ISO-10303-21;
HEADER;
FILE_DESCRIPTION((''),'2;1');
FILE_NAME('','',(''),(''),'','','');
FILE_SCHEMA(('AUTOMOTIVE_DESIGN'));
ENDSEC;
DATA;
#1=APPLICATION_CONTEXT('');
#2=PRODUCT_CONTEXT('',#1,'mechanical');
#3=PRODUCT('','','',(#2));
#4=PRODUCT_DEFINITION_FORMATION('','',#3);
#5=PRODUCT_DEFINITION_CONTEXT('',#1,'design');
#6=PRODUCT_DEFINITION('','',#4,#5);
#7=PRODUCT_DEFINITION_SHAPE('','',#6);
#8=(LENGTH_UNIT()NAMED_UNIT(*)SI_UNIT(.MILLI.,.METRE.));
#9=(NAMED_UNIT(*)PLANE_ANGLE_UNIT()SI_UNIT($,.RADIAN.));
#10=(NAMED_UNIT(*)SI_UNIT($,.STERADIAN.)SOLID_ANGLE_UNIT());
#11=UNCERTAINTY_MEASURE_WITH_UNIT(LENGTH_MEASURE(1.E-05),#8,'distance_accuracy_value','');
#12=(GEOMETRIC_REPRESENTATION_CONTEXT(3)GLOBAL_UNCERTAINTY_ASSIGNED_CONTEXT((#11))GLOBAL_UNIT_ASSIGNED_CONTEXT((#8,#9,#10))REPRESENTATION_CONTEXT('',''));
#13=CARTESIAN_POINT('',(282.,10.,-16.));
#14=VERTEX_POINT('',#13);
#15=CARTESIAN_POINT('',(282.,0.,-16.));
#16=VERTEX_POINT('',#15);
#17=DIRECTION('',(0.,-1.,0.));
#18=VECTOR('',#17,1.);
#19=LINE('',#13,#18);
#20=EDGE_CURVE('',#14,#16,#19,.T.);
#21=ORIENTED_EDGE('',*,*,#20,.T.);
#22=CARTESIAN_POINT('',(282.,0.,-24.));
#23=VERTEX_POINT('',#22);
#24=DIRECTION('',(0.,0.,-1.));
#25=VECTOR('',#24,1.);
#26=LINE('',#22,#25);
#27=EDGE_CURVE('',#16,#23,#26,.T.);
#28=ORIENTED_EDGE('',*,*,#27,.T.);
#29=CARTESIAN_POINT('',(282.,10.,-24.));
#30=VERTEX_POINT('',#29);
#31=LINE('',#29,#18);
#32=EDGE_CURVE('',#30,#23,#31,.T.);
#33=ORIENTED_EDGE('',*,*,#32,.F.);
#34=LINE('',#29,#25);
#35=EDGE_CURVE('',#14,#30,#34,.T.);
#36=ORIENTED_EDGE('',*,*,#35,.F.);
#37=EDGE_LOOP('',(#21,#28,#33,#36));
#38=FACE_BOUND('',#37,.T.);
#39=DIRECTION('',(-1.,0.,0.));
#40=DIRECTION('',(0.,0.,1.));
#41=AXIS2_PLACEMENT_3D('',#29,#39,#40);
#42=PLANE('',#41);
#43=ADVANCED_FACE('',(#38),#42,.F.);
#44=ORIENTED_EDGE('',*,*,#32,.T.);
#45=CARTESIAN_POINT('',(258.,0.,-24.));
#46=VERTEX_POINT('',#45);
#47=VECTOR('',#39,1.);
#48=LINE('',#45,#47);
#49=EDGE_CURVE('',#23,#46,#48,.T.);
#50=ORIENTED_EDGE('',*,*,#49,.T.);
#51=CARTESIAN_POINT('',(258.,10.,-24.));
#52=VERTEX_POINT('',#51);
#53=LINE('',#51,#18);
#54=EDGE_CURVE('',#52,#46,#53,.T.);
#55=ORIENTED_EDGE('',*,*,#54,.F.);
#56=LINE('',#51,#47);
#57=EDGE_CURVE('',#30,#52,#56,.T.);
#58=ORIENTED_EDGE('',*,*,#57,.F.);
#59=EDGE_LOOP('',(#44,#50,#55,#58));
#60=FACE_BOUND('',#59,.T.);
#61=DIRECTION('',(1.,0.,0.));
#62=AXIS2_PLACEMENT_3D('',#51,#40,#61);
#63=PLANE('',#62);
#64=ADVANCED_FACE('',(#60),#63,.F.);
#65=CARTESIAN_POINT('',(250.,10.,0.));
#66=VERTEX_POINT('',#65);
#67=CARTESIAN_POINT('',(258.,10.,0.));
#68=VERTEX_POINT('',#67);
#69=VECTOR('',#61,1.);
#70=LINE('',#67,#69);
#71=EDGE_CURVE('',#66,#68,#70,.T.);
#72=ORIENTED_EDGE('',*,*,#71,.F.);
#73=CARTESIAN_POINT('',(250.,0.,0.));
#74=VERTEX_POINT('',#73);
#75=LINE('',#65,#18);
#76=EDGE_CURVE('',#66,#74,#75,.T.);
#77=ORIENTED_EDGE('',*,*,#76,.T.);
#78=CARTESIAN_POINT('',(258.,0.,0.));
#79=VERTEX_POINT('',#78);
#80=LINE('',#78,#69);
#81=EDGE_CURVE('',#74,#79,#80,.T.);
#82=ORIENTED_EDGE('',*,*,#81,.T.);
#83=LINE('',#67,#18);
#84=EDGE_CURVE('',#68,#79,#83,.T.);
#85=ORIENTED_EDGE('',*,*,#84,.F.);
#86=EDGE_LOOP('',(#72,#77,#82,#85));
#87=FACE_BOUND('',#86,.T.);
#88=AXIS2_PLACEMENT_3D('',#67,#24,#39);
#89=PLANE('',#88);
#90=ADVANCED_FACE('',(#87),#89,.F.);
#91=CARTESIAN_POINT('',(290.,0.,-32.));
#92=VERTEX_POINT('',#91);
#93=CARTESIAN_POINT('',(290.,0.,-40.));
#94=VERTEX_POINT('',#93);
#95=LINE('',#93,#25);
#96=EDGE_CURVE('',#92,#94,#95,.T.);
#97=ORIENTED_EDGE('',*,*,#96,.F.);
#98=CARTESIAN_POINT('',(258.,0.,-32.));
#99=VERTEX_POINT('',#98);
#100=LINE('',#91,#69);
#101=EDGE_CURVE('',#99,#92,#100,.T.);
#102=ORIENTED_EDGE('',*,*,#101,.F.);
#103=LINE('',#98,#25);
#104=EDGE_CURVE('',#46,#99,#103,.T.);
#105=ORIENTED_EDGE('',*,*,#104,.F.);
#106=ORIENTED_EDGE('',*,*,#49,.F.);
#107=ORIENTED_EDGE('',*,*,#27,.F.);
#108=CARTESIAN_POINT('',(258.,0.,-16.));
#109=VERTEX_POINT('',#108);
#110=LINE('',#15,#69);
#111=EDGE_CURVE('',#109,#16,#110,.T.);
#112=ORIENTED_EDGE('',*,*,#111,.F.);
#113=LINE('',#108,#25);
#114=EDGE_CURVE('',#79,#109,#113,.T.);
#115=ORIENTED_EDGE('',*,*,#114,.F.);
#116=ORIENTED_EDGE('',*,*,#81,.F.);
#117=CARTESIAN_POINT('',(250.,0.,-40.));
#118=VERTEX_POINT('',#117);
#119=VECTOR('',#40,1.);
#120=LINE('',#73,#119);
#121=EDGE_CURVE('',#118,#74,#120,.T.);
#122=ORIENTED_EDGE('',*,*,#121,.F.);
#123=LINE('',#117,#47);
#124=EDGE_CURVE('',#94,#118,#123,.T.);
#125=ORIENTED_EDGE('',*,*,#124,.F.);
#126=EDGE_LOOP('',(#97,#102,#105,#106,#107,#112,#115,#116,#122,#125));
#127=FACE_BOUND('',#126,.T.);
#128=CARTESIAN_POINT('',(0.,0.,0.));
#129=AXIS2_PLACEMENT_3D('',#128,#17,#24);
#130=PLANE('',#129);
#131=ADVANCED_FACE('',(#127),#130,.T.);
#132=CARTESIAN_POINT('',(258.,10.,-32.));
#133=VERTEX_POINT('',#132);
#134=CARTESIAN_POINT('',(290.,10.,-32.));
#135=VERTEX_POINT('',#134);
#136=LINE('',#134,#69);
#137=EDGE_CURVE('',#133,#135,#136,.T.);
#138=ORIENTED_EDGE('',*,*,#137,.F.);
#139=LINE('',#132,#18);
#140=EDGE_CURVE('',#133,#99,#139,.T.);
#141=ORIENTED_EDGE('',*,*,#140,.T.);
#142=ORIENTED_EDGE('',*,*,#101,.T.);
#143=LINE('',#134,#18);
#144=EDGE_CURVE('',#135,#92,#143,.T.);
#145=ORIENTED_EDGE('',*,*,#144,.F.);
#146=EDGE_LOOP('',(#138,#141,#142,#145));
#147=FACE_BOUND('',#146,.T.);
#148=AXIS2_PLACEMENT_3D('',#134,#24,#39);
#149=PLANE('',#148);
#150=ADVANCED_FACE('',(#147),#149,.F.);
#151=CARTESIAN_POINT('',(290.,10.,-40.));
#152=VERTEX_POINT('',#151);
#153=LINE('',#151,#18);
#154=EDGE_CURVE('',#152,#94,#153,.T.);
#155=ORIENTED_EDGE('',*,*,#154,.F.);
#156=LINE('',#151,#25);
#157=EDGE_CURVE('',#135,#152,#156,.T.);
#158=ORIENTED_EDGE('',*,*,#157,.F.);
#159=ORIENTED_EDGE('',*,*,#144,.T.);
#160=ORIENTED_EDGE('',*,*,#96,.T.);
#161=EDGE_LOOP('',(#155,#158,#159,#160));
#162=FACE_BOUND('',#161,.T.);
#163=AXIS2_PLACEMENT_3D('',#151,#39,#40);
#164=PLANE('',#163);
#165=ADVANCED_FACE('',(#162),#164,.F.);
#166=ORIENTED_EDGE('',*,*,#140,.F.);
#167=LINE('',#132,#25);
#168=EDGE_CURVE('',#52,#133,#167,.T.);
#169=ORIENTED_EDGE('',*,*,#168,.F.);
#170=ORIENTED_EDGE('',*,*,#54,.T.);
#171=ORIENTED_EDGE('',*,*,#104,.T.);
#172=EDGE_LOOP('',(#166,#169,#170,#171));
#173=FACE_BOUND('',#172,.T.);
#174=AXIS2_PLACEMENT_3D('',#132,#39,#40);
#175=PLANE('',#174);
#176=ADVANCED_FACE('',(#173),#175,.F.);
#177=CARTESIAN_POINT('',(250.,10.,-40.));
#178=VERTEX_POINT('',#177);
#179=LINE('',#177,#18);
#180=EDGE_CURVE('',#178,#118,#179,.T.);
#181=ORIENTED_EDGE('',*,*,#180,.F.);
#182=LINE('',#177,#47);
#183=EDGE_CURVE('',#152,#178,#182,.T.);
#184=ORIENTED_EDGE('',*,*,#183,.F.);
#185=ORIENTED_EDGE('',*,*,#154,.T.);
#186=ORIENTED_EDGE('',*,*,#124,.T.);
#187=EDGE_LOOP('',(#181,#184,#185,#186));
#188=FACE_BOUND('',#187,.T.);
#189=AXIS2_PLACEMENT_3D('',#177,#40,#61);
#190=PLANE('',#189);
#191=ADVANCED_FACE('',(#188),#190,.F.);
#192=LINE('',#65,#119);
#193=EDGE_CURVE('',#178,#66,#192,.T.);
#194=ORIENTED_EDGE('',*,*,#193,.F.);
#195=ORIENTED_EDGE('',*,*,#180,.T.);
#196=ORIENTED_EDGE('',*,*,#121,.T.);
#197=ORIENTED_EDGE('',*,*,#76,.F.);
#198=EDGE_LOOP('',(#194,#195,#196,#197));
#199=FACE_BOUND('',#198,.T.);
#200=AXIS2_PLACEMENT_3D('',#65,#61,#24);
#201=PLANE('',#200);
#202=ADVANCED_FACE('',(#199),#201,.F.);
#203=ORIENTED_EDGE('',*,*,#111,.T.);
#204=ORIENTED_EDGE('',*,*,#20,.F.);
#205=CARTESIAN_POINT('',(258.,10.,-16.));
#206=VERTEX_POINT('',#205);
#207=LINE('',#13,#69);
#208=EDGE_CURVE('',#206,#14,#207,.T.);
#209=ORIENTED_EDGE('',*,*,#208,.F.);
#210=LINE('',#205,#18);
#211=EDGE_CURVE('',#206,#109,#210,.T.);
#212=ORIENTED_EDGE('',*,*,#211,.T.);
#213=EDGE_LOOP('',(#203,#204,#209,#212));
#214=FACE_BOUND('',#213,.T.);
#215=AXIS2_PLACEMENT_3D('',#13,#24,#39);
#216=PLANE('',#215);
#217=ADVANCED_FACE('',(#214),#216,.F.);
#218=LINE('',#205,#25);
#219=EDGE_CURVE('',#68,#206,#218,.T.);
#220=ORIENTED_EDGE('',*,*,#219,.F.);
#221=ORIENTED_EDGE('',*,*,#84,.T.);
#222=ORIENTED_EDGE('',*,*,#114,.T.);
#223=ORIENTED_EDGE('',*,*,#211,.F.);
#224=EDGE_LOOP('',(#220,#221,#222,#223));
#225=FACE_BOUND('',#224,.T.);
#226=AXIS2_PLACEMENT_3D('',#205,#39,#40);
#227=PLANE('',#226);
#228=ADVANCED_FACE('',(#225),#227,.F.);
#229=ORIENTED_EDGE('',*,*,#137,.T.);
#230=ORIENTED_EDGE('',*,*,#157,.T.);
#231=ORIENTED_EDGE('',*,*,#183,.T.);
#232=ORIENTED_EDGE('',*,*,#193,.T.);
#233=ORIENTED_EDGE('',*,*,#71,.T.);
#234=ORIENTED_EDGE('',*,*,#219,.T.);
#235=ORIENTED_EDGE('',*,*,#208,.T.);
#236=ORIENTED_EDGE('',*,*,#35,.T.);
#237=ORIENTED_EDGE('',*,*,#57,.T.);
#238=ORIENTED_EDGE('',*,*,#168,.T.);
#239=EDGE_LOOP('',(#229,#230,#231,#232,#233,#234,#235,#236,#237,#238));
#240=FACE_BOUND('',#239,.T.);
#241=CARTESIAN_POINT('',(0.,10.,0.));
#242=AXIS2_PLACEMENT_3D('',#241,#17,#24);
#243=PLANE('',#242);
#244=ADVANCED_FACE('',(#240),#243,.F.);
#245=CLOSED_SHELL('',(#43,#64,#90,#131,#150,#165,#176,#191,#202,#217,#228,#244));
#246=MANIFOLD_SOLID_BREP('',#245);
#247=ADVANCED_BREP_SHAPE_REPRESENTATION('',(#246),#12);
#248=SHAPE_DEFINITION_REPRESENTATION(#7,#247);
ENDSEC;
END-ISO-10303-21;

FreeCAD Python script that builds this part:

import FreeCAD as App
import Part
import Sketcher
from FreeCAD import Vector


def add_polygon(sketch, points):
    """Adds a closed chain of lines whose ends are joined by coincident constraints."""
    first, n = sketch.GeometryCount, len(points)
    for a, b in zip(points, points[1:] + points[:1]):
        sketch.addGeometry(Part.LineSegment(App.Vector(*a, 0), App.Vector(*b, 0)), False)
    for i in range(n):
        sketch.addConstraint(Sketcher.Constraint("Coincident", first + i, 2, first + (i + 1) % n, 1))

doc = App.newDocument("Part")
body = doc.addObject("PartDesign::Body", "Body")

# Sketch on XZ plane
sketch1 = doc.addObject("Sketcher::SketchObject", "Sketch")
body.addObject(sketch1)
sketch1.AttachmentSupport = (doc.XZ_Plane, [""])
sketch1.MapMode = "FlatFace"
add_polygon(sketch1, [(250, -40), (250, 0), (258, 0), (258, -16), (282, -16), (282, -24), (258, -24), (258, -32), (290, -32), (290, -40)])  # lines 0-9
sketch1.addConstraint([
    Sketcher.Constraint("Vertical", 0),
    Sketcher.Constraint("Horizontal", 1),
    Sketcher.Constraint("Vertical", 2),
    Sketcher.Constraint("Horizontal", 3),
    Sketcher.Constraint("Vertical", 4),
    Sketcher.Constraint("Horizontal", 5),
    Sketcher.Constraint("Vertical", 6),
    Sketcher.Constraint("Horizontal", 7),
    Sketcher.Constraint("Vertical", 8),
    Sketcher.Constraint("Horizontal", 9),
    Sketcher.Constraint("PointOnObject", 0, 2, -1),
    Sketcher.Constraint("Vertical", 2, 2, 5, 2),
    Sketcher.Constraint("Equal", 9, 0),
    Sketcher.Constraint("Equal", 1, 4),
    Sketcher.Constraint("Equal", 4, 6),
    Sketcher.Constraint("Equal", 6, 8),
    Sketcher.Constraint("DistanceX", 1, 1, 1, 2, 8.0),
    Sketcher.Constraint("DistanceX", 3, 1, 3, 2, 24.0),
    Sketcher.Constraint("DistanceX", 7, 1, 7, 2, 32.0),
    Sketcher.Constraint("DistanceX", -1, 1, 0, 2, 250.0),
])
pad1 = doc.addObject("PartDesign::Pad", "Pad")
body.addObject(pad1)
pad1.Profile = sketch1
pad1.Length = 10
pad1.Reversed = True

doc.recompute()
